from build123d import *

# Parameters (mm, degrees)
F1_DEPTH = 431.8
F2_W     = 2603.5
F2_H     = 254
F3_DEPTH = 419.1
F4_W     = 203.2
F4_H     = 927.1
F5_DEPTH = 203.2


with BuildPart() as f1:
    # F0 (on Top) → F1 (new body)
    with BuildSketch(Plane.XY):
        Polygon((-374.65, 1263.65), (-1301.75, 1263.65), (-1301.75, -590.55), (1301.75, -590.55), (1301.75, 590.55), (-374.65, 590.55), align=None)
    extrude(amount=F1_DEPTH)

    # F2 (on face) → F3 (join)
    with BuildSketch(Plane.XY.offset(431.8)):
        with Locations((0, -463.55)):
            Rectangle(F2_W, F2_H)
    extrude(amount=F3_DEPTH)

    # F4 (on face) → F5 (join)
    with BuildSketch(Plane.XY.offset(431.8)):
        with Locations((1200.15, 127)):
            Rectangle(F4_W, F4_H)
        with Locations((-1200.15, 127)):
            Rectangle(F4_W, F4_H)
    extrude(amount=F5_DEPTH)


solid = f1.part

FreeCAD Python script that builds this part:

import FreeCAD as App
import Part
import Sketcher
Q = App.Units.Quantity

doc = App.newDocument("Part")
body = doc.addObject("PartDesign::Body", "Body")

# Sketch on XY plane
sketch1 = body.newObject("Sketcher::SketchObject", "Sketch")
sketch1.AttachmentSupport = (doc.getObject("XY_Plane"), [""])
sketch1.MapMode = "FlatFace"
sketch1.addGeometry(Part.LineSegment(App.Vector(-375, 1264, 0), App.Vector(-1302, 1264, 0)), False)
sketch1.addGeometry(Part.LineSegment(App.Vector(-1302, 1264, 0), App.Vector(-1302, -591, 0)), False)
sketch1.addGeometry(Part.LineSegment(App.Vector(-1302, -591, 0), App.Vector(1302, -591, 0)), False)
sketch1.addGeometry(Part.LineSegment(App.Vector(1302, -591, 0), App.Vector(1302, 591, 0)), False)
sketch1.addGeometry(Part.LineSegment(App.Vector(1302, 591, 0), App.Vector(-375, 591, 0)), False)
sketch1.addGeometry(Part.LineSegment(App.Vector(-375, 591, 0), App.Vector(-375, 1264, 0)), False)
sketch1.addConstraint(Sketcher.Constraint("Coincident", 0, 2, 1, 1))
sketch1.addConstraint(Sketcher.Constraint("Coincident", 1, 2, 2, 1))
sketch1.addConstraint(Sketcher.Constraint("Coincident", 2, 2, 3, 1))
sketch1.addConstraint(Sketcher.Constraint("Coincident", 3, 2, 4, 1))
sketch1.addConstraint(Sketcher.Constraint("Coincident", 4, 2, 5, 1))
sketch1.addConstraint(Sketcher.Constraint("Coincident", 5, 2, 0, 1))
sketch1.addConstraint(Sketcher.Constraint("Horizontal", 0))
sketch1.addConstraint(Sketcher.Constraint("Vertical", 1))
sketch1.addConstraint(Sketcher.Constraint("Horizontal", 2))
sketch1.addConstraint(Sketcher.Constraint("Vertical", 3))
sketch1.addConstraint(Sketcher.Constraint("Horizontal", 4))
sketch1.addConstraint(Sketcher.Constraint("Vertical", 5))
sketch1.addConstraint(Sketcher.Constraint("Symmetric", 1, 2, 3, 2, -1, 1))
sketch1.addConstraint(Sketcher.Constraint("DistanceX", 4, 2, 4, 1, Q("66 in")))
sketch1.addConstraint(Sketcher.Constraint("DistanceY", 1, 2, 1, 1, Q("73 in")))
sketch1.addConstraint(Sketcher.Constraint("DistanceX", 0, 2, 0, 1, Q("36.5 in")))
sketch1.addConstraint(Sketcher.Constraint("DistanceY", 3, 1, 3, 2, Q("46.5 in")))
pad1 = body.newObject("PartDesign::Pad", "Pad")
pad1.Profile = sketch1
pad1.Length = Q("17 in")

# Sketch on XY plane
sketch2 = body.newObject("Sketcher::SketchObject", "Sketch001")
sketch2.AttachmentSupport = (doc.getObject("XY_Plane"), [""])
sketch2.MapMode = "FlatFace"
sketch2.AttachmentOffset = App.Placement(App.Vector(0, 0, 17 * 25.4), App.Rotation())
sketch2.addGeometry(Part.LineSegment(App.Vector(-1302, -337, 0), App.Vector(-1302, -591, 0)), False)
sketch2.addGeometry(Part.LineSegment(App.Vector(-1302, -591, 0), App.Vector(1302, -591, 0)), False)
sketch2.addGeometry(Part.LineSegment(App.Vector(1302, -591, 0), App.Vector(1302, -337, 0)), False)
sketch2.addGeometry(Part.LineSegment(App.Vector(1302, -337, 0), App.Vector(-1302, -337, 0)), False)
sketch2.addConstraint(Sketcher.Constraint("Coincident", 0, 2, 1, 1))
sketch2.addConstraint(Sketcher.Constraint("Coincident", 1, 2, 2, 1))
sketch2.addConstraint(Sketcher.Constraint("Coincident", 2, 2, 3, 1))
sketch2.addConstraint(Sketcher.Constraint("Coincident", 3, 2, 0, 1))
sketch2.addConstraint(Sketcher.Constraint("Vertical", 0))
sketch2.addConstraint(Sketcher.Constraint("Horizontal", 1))
sketch2.addConstraint(Sketcher.Constraint("Vertical", 2))
sketch2.addConstraint(Sketcher.Constraint("Horizontal", 3))
sketch2.addConstraint(Sketcher.Constraint("DistanceY", 0, 2, 0, 1, Q("10 in")))
sketch2.addConstraint(Sketcher.Constraint("DistanceX", 1, 1, 1, 2, Q("102.5 in")))
sketch2.addConstraint(Sketcher.Constraint("DistanceX", 0, 2, -1, 1, Q("51.25 in")))
sketch2.addConstraint(Sketcher.Constraint("DistanceY", 0, 2, -1, 1, Q("23.25 in")))
pad2 = body.newObject("PartDesign::Pad", "Pad001")
pad2.Profile = sketch2
pad2.Length = Q("16.5 in")

# Sketch on XY plane
sketch3 = body.newObject("Sketcher::SketchObject", "Sketch002")
sketch3.AttachmentSupport = (doc.getObject("XY_Plane"), [""])
sketch3.MapMode = "FlatFace"
sketch3.AttachmentOffset = App.Placement(App.Vector(0, 0, 17 * 25.4), App.Rotation())
sketch3.addGeometry(Part.LineSegment(App.Vector(1099, 591, 0), App.Vector(1099, -337, 0)), False)
sketch3.addGeometry(Part.LineSegment(App.Vector(1099, -337, 0), App.Vector(1302, -337, 0)), False)
sketch3.addGeometry(Part.LineSegment(App.Vector(1302, -337, 0), App.Vector(1302, 591, 0)), False)
sketch3.addGeometry(Part.LineSegment(App.Vector(1302, 591, 0), App.Vector(1099, 591, 0)), False)
sketch3.addGeometry(Part.LineSegment(App.Vector(-1302, 591, 0), App.Vector(-1302, -337, 0)), False)
sketch3.addGeometry(Part.LineSegment(App.Vector(-1302, -337, 0), App.Vector(-1099, -337, 0)), False)
sketch3.addGeometry(Part.LineSegment(App.Vector(-1099, -337, 0), App.Vector(-1099, 591, 0)), False)
sketch3.addGeometry(Part.LineSegment(App.Vector(-1099, 591, 0), App.Vector(-1302, 591, 0)), False)
sketch3.addConstraint(Sketcher.Constraint("Coincident", 0, 2, 1, 1))
sketch3.addConstraint(Sketcher.Constraint("Coincident", 1, 2, 2, 1))
sketch3.addConstraint(Sketcher.Constraint("Coincident", 2, 2, 3, 1))
sketch3.addConstraint(Sketcher.Constraint("Coincident", 3, 2, 0, 1))
sketch3.addConstraint(Sketcher.Constraint("Coincident", 4, 2, 5, 1))
sketch3.addConstraint(Sketcher.Constraint("Coincident", 5, 2, 6, 1))
sketch3.addConstraint(Sketcher.Constraint("Coincident", 6, 2, 7, 1))
sketch3.addConstraint(Sketcher.Constraint("Coincident", 7, 2, 4, 1))
sketch3.addConstraint(Sketcher.Constraint("Vertical", 0))
sketch3.addConstraint(Sketcher.Constraint("Horizontal", 1))
sketch3.addConstraint(Sketcher.Constraint("Vertical", 2))
sketch3.addConstraint(Sketcher.Constraint("Horizontal", 3))
sketch3.addConstraint(Sketcher.Constraint("Vertical", 4))
sketch3.addConstraint(Sketcher.Constraint("Horizontal", 5))
sketch3.addConstraint(Sketcher.Constraint("Vertical", 6))
sketch3.addConstraint(Sketcher.Constraint("Horizontal", 7))
sketch3.addConstraint(Sketcher.Constraint("Symmetric", 1, 2, 4, 2, -2))
sketch3.addConstraint(Sketcher.Constraint("Symmetric", 3, 2, 6, 2, -2))
sketch3.addConstraint(Sketcher.Constraint("DistanceX", 1, 1, 1, 2, Q("8 in")))
sketch3.addConstraint(Sketcher.Constraint("DistanceY", 0, 2, 0, 1, Q("36.5 in")))
sketch3.addConstraint(Sketcher.Constraint("DistanceX", 4, 2, 0, 2, Q("94.5 in")))
sketch3.addConstraint(Sketcher.Constraint("DistanceY", 0, 2, -1, 1, Q("13.25 in")))
pad3 = body.newObject("PartDesign::Pad", "Pad002")
pad3.Profile = sketch3
pad3.Length = Q("8 in")

doc.recompute()
